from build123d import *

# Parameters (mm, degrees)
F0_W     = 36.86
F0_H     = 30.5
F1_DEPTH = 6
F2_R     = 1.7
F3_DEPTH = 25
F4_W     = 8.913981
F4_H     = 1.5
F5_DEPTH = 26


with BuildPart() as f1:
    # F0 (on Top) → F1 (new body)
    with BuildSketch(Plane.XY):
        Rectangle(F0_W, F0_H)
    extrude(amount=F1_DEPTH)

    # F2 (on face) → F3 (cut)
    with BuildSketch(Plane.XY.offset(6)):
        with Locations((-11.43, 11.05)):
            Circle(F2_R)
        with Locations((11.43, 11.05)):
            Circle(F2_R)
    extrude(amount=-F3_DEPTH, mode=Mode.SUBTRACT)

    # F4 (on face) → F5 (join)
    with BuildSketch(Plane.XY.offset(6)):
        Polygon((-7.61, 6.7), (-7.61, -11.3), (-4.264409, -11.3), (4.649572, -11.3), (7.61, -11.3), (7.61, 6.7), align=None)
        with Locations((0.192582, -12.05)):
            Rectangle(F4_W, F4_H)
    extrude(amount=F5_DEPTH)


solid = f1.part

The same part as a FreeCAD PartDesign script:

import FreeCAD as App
import Part
import Sketcher
from FreeCAD import Vector


def add_polygon(sketch, points):
    """Adds a closed chain of lines whose ends are joined by coincident constraints."""
    first, n = sketch.GeometryCount, len(points)
    for a, b in zip(points, points[1:] + points[:1]):
        sketch.addGeometry(Part.LineSegment(App.Vector(*a, 0), App.Vector(*b, 0)), False)
    for i in range(n):
        sketch.addConstraint(Sketcher.Constraint("Coincident", first + i, 2, first + (i + 1) % n, 1))

doc = App.newDocument("Part")
params = doc.addObject("Spreadsheet::Sheet", "Params")
for row, (alias, value) in enumerate([
    ("sketch1_height", "30.5 mm"),
    ("sketch1_width", "36.86 mm"),
    ("pad1_length", "6 mm"),
    ("sketch2_diameter", "3.4 mm"),
    ("pocket1_length", "25 mm"),
    ("sketch3_height", "18 mm"),
    ("sketch3_height2", "1.5 mm"),
    ("sketch3_width", "15.22 mm"),
    ("pad2_length", "26 mm"),
], start=1):
    params.set(f"A{row}", alias)
    params.set(f"B{row}", "=" + value)
    params.setAlias(f"B{row}", alias)

body = doc.addObject("PartDesign::Body", "Body")

# Sketch on XY plane
sketch1 = body.newObject("Sketcher::SketchObject", "Sketch")
sketch1.AttachmentSupport = (doc.getObject("XY_Plane"), [""])
sketch1.MapMode = "FlatFace"
add_polygon(sketch1, [(-18, 15), (-18, -15), (18, -15), (18, 15)])  # lines 0-3
sketch1.addConstraint(Sketcher.Constraint("Vertical", 0))
sketch1.addConstraint(Sketcher.Constraint("Horizontal", 1))
sketch1.addConstraint(Sketcher.Constraint("Vertical", 2))
sketch1.addConstraint(Sketcher.Constraint("Horizontal", 3))
sketch1.addConstraint(Sketcher.Constraint("Symmetric", 0, 2, 2, 2, -1, 1))
sketch1.addConstraint(Sketcher.Constraint("DistanceY", 0, 2, 0, 1, 30.5))
sketch1.addConstraint(Sketcher.Constraint("DistanceX", 1, 1, 1, 2, 36.86))
sketch1.setExpression("Constraints[9]", "Params.sketch1_height")
sketch1.setExpression("Constraints[10]", "Params.sketch1_width")
pad1 = body.newObject("PartDesign::Pad", "Pad")
pad1.Profile = sketch1
pad1.setExpression("Length", "Params.pad1_length")

# Sketch on XY plane
sketch2 = body.newObject("Sketcher::SketchObject", "Sketch001")
sketch2.AttachmentSupport = (doc.getObject("XY_Plane"), [""])
sketch2.MapMode = "FlatFace"
sketch2.AttachmentOffset = App.Placement(Vector(0, 0, 6), App.Rotation())
sketch2.addGeometry(Part.Circle(Vector(-11.4, 11.1, 0), Vector(0, 0, 1), 1.7), False)
sketch2.addGeometry(Part.Circle(Vector(11.4, 11.1, 0), Vector(0, 0, 1), 1.7), False)
sketch2.addConstraint(Sketcher.Constraint("Equal", 0, 1))
sketch2.addConstraint(Sketcher.Constraint("Symmetric", 0, 3, 1, 3, -2))
sketch2.addConstraint(Sketcher.Constraint("Diameter", 0, 3.4))
sketch2.addConstraint(Sketcher.Constraint("DistanceX", 0, 3, -1, 1, 11.43))
sketch2.addConstraint(Sketcher.Constraint("DistanceY", -1, 1, 0, 3, 11.05))
sketch2.setExpression("Constraints[2]", "Params.sketch2_diameter")
pocket1 = body.newObject("PartDesign::Pocket", "Pocket")
pocket1.Profile = sketch2
pocket1.setExpression("Length", "Params.pocket1_length")

# Sketch on XY plane
sketch3 = body.newObject("Sketcher::SketchObject", "Sketch002")
sketch3.AttachmentSupport = (doc.getObject("XY_Plane"), [""])
sketch3.MapMode = "FlatFace"
sketch3.AttachmentOffset = App.Placement(Vector(0, 0, 6), App.Rotation())
add_polygon(sketch3, [(-7.6, 6.7), (-7.6, -11.3), (-4.3, -11.3), (-4.3, -12.8), (4.6, -12.8), (4.6, -11.3), (7.6, -11.3), (7.6, 6.7)])  # lines 0-7
sketch3.addConstraint(Sketcher.Constraint("Vertical", 0))
sketch3.addConstraint(Sketcher.Constraint("Horizontal", 1))
sketch3.addConstraint(Sketcher.Constraint("Vertical", 2))
sketch3.addConstraint(Sketcher.Constraint("Horizontal", 3))
sketch3.addConstraint(Sketcher.Constraint("Vertical", 4))
sketch3.addConstraint(Sketcher.Constraint("Horizontal", 5))
sketch3.addConstraint(Sketcher.Constraint("Vertical", 6))
sketch3.addConstraint(Sketcher.Constraint("Horizontal", 7))
sketch3.addConstraint(Sketcher.Constraint("Symmetric", 0, 2, 5, 2, -2))
sketch3.addConstraint(Sketcher.Constraint("DistanceY", 0, 2, 0, 1, 18.0))
sketch3.addConstraint(Sketcher.Constraint("DistanceY", 2, 2, 2, 1, 1.5))
sketch3.addConstraint(Sketcher.Constraint("DistanceX", 7, 2, 7, 1, 15.22))
sketch3.addConstraint(Sketcher.Constraint("DistanceY", 0, 2, -1, 1, 11.3))
sketch3.addConstraint(Sketcher.Constraint("DistanceX", 1, 1, 1, 2, 3.345592))
sketch3.addConstraint(Sketcher.Constraint("DistanceX", 3, 1, 3, 2, 8.913981))
sketch3.setExpression("Constraints[17]", "Params.sketch3_height")
sketch3.setExpression("Constraints[18]", "Params.sketch3_height2")
sketch3.setExpression("Constraints[19]", "Params.sketch3_width")
pad2 = body.newObject("PartDesign::Pad", "Pad001")
pad2.Profile = sketch3
pad2.setExpression("Length", "Params.pad2_length")

doc.recompute()
